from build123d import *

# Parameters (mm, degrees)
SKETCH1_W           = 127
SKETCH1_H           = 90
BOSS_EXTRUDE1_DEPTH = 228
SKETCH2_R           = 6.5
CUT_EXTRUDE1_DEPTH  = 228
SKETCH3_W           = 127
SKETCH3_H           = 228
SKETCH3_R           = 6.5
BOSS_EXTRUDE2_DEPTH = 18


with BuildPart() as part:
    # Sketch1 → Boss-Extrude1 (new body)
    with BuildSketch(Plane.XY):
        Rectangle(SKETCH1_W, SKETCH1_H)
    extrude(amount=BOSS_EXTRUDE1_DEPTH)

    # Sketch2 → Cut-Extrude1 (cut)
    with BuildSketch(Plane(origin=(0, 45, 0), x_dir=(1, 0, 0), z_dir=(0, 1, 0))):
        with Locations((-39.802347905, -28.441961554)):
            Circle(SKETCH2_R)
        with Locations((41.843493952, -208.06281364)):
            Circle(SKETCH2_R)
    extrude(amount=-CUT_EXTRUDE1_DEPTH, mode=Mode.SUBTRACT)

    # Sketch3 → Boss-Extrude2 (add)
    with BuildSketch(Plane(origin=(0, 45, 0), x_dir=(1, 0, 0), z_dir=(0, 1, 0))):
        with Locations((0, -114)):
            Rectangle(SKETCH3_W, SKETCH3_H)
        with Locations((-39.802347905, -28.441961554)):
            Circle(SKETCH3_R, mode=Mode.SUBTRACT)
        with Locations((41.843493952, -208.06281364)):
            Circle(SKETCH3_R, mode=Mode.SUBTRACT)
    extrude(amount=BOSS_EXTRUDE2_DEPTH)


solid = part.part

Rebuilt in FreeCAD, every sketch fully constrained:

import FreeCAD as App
import Part
import Sketcher
from FreeCAD import Vector

doc = App.newDocument("Part")
body = doc.addObject("PartDesign::Body", "Body")

sketch1 = doc.addObject("Sketcher::SketchObject", "Sketch")
body.addObject(sketch1)
sketch1.AttachmentSupport = (doc.XY_Plane, [""])
sketch1.MapMode = "FlatFace"
sketch1.addGeometry(Part.LineSegment(Vector(-64, 45, 0), Vector(-64, -45, 0)), False)
sketch1.addGeometry(Part.LineSegment(Vector(-64, -45, 0), Vector(64, -45, 0)), False)
sketch1.addGeometry(Part.LineSegment(Vector(64, -45, 0), Vector(64, 45, 0)), False)
sketch1.addGeometry(Part.LineSegment(Vector(64, 45, 0), Vector(-64, 45, 0)), False)
sketch1.addConstraint(Sketcher.Constraint("Coincident", 0, 2, 1, 1))
sketch1.addConstraint(Sketcher.Constraint("Coincident", 1, 2, 2, 1))
sketch1.addConstraint(Sketcher.Constraint("Coincident", 2, 2, 3, 1))
sketch1.addConstraint(Sketcher.Constraint("Coincident", 3, 2, 0, 1))
sketch1.addConstraint(Sketcher.Constraint("Vertical", 0))
sketch1.addConstraint(Sketcher.Constraint("Horizontal", 1))
sketch1.addConstraint(Sketcher.Constraint("Vertical", 2))
sketch1.addConstraint(Sketcher.Constraint("Horizontal", 3))
sketch1.addConstraint(Sketcher.Constraint("Symmetric", 0, 2, 2, 2, -1, 1))
sketch1.addConstraint(Sketcher.Constraint("DistanceX", 1, 1, 1, 2, 127.0))
sketch1.addConstraint(Sketcher.Constraint("DistanceY", 0, 2, 0, 1, 90.0))
pad1 = doc.addObject("PartDesign::Pad", "Pad")
body.addObject(pad1)
pad1.Profile = sketch1
pad1.Length = 228

sketch2 = doc.addObject("Sketcher::SketchObject", "Sketch001")
body.addObject(sketch2)
sketch2.AttachmentSupport = (doc.XZ_Plane, [""])
sketch2.MapMode = "FlatFace"
sketch2.AttachmentOffset = App.Placement(Vector(0, 0, -45), App.Rotation())
sketch2.addGeometry(Part.Circle(Vector(-40, 28, 0), Vector(0, 0, 1), 6), False)
sketch2.addGeometry(Part.Circle(Vector(42, 208, 0), Vector(0, 0, 1), 6), False)
sketch2.addConstraint(Sketcher.Constraint("Equal", 0, 1))
sketch2.addConstraint(Sketcher.Constraint("Diameter", 0, 13.0))
sketch2.addConstraint(Sketcher.Constraint("DistanceY", -1, 1, 0, 3, 28.441962))
sketch2.addConstraint(Sketcher.Constraint("DistanceX", 0, 3, 1, 3, 81.645842))
sketch2.addConstraint(Sketcher.Constraint("DistanceX", 0, 3, -1, 1, 39.802348))
sketch2.addConstraint(Sketcher.Constraint("DistanceY", -1, 1, 1, 3, 208.062814))
pocket1 = doc.addObject("PartDesign::Pocket", "Pocket")
body.addObject(pocket1)
pocket1.Profile = sketch2
pocket1.Length = 228
pocket1.Reversed = True

sketch3 = doc.addObject("Sketcher::SketchObject", "Sketch002")
body.addObject(sketch3)
sketch3.AttachmentSupport = (doc.XZ_Plane, [""])
sketch3.MapMode = "FlatFace"
sketch3.AttachmentOffset = App.Placement(Vector(0, 0, -45), App.Rotation())
sketch3.addGeometry(Part.LineSegment(Vector(-64, 0, 0), Vector(-64, 228, 0)), False)
sketch3.addGeometry(Part.LineSegment(Vector(-64, 228, 0), Vector(64, 228, 0)), False)
sketch3.addGeometry(Part.LineSegment(Vector(64, 228, 0), Vector(64, 0, 0)), False)
sketch3.addGeometry(Part.LineSegment(Vector(64, 0, 0), Vector(-64, 0, 0)), False)
sketch3.addGeometry(Part.Circle(Vector(42, 208, 0), Vector(0, 0, 1), 6), False)
sketch3.addGeometry(Part.Circle(Vector(-40, 28, 0), Vector(0, 0, 1), 6), False)
sketch3.addConstraint(Sketcher.Constraint("Coincident", 0, 2, 1, 1))
sketch3.addConstraint(Sketcher.Constraint("Coincident", 1, 2, 2, 1))
sketch3.addConstraint(Sketcher.Constraint("Coincident", 2, 2, 3, 1))
sketch3.addConstraint(Sketcher.Constraint("Coincident", 3, 2, 0, 1))
sketch3.addConstraint(Sketcher.Constraint("Vertical", 0))
sketch3.addConstraint(Sketcher.Constraint("Horizontal", 1))
sketch3.addConstraint(Sketcher.Constraint("Vertical", 2))
sketch3.addConstraint(Sketcher.Constraint("Horizontal", 3))
sketch3.addConstraint(Sketcher.Constraint("Equal", 4, 5))
sketch3.addConstraint(Sketcher.Constraint("Symmetric", 2, 2, 3, 2, -1, 1))
sketch3.addConstraint(Sketcher.Constraint("Diameter", 4, 13.0))
sketch3.addConstraint(Sketcher.Constraint("DistanceX", 1, 1, 1, 2, 127.0))
sketch3.addConstraint(Sketcher.Constraint("DistanceY", 0, 1, 0, 2, 228.0))
sketch3.addConstraint(Sketcher.Constraint("DistanceY", -1, 1, 5, 3, 28.441962))
sketch3.addConstraint(Sketcher.Constraint("DistanceX", 5, 3, 4, 3, 81.645842))
sketch3.addConstraint(Sketcher.Constraint("DistanceX", -1, 1, 4, 3, 41.843494))
sketch3.addConstraint(Sketcher.Constraint("DistanceY", -1, 1, 4, 3, 208.062814))
pad2 = doc.addObject("PartDesign::Pad", "Pad001")
body.addObject(pad2)
pad2.Profile = sketch3
pad2.Length = 18
pad2.Reversed = True

doc.recompute()
